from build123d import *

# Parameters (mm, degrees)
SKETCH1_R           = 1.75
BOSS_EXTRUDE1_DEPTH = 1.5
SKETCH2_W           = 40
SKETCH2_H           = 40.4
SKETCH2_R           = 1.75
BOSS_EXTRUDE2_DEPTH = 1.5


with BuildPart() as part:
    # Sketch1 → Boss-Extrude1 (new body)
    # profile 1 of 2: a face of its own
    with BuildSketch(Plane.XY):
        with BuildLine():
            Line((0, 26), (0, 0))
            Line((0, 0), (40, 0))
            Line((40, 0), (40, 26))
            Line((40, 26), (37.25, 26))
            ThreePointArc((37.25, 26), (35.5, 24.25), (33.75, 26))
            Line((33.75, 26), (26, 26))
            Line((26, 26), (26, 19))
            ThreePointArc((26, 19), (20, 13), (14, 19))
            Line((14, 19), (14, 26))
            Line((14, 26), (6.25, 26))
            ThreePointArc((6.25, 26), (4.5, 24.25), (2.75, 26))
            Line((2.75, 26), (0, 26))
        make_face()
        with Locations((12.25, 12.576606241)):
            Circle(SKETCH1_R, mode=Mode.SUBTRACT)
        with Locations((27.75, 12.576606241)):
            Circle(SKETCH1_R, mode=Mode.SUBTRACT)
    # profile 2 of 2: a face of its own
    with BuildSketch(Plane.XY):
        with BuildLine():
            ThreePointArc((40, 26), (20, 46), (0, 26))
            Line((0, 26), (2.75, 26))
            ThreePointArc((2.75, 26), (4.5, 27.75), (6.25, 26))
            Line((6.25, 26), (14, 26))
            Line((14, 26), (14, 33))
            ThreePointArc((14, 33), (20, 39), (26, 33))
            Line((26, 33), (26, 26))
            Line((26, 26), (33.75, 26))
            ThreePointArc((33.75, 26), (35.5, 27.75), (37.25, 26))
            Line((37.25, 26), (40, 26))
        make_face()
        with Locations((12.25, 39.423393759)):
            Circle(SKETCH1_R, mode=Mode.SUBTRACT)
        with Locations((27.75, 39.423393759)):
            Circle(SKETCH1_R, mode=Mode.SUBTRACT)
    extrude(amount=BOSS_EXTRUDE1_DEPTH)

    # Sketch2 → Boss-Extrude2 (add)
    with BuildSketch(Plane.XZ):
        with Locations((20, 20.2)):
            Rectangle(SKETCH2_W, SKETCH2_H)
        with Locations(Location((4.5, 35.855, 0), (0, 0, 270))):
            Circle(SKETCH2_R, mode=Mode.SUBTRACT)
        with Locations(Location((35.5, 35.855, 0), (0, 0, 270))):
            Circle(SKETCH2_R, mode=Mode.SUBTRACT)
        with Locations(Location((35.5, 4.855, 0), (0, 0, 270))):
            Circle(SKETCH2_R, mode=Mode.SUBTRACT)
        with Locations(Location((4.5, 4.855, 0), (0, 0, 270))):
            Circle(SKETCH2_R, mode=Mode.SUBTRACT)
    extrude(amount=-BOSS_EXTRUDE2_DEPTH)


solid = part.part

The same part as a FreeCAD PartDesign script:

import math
import FreeCAD as App
import Part
import Sketcher
from FreeCAD import Vector

doc = App.newDocument("Part")
body = doc.addObject("PartDesign::Body", "Body")

# Sketch on XY plane
sketch1 = doc.addObject("Sketcher::SketchObject", "Sketch")
body.addObject(sketch1)
sketch1.AttachmentSupport = (doc.XY_Plane, [""])
sketch1.MapMode = "FlatFace"
sketch1.addGeometry(Part.LineSegment(Vector(0, 26, 0), Vector(0, 0, 0)), False)
sketch1.addGeometry(Part.LineSegment(Vector(0, 0, 0), Vector(40, 0, 0)), False)
sketch1.addGeometry(Part.LineSegment(Vector(40, 0, 0), Vector(40, 26, 0)), False)
sketch1.addGeometry(Part.ArcOfCircle(Part.Circle(Vector(20, 26, 0), Vector(0, 0, 1), 20), math.radians(0), math.radians(180)), False)
sketch1.addGeometry(Part.Circle(Vector(4.5, 26, 0), Vector(0, 0, 1), 1.8), False)
sketch1.addGeometry(Part.LineSegment(Vector(14, 19, 0), Vector(14, 33, 0)), False)
sketch1.addGeometry(Part.ArcOfCircle(Part.Circle(Vector(20, 33, 0), Vector(0, 0, 1), 6), math.radians(0), math.radians(180)), False)
sketch1.addGeometry(Part.LineSegment(Vector(26, 33, 0), Vector(26, 19, 0)), False)
sketch1.addGeometry(Part.ArcOfCircle(Part.Circle(Vector(20, 19, 0), Vector(0, 0, 1), 6), math.radians(180), math.radians(360)), False)
sketch1.addGeometry(Part.Circle(Vector(35.5, 26, 0), Vector(0, 0, 1), 1.8), False)
sketch1.addGeometry(Part.Circle(Vector(12.2, 12.6, 0), Vector(0, 0, 1), 1.8), False)
sketch1.addGeometry(Part.Circle(Vector(27.8, 12.6, 0), Vector(0, 0, 1), 1.8), False)
sketch1.addGeometry(Part.Circle(Vector(27.8, 39.4, 0), Vector(0, 0, 1), 1.8), False)
sketch1.addGeometry(Part.Circle(Vector(12.2, 39.4, 0), Vector(0, 0, 1), 1.8), False)
sketch1.addConstraint(Sketcher.Constraint("Coincident", 0, 2, 1, 1))
sketch1.addConstraint(Sketcher.Constraint("Coincident", 1, 2, 2, 1))
sketch1.addConstraint(Sketcher.Constraint("Tangent", 2, 2, 3, 1))
sketch1.addConstraint(Sketcher.Constraint("Tangent", 3, 2, 0, 1))
sketch1.addConstraint(Sketcher.Constraint("Tangent", 5, 2, 6, 2))
sketch1.addConstraint(Sketcher.Constraint("Tangent", 6, 1, 7, 1))
sketch1.addConstraint(Sketcher.Constraint("Tangent", 7, 2, 8, 2))
sketch1.addConstraint(Sketcher.Constraint("Tangent", 8, 1, 5, 1))
sketch1.addConstraint(Sketcher.Constraint("Vertical", 0))
sketch1.addConstraint(Sketcher.Constraint("Horizontal", 1))
sketch1.addConstraint(Sketcher.Constraint("Vertical", 2))
sketch1.addConstraint(Sketcher.Constraint("Vertical", 5))
sketch1.addConstraint(Sketcher.Constraint("Vertical", 7))
sketch1.addConstraint(Sketcher.Constraint("Coincident", 0, 2, -1, 1))
sketch1.addConstraint(Sketcher.Constraint("Equal", 4, 9))
sketch1.addConstraint(Sketcher.Constraint("Equal", 9, 10))
sketch1.addConstraint(Sketcher.Constraint("Equal", 10, 11))
sketch1.addConstraint(Sketcher.Constraint("Equal", 11, 12))
sketch1.addConstraint(Sketcher.Constraint("Equal", 12, 13))
sketch1.addConstraint(Sketcher.Constraint("Horizontal", 3, 3, 4, 3))
sketch1.addConstraint(Sketcher.Constraint("Horizontal", 4, 3, 9, 3))
sketch1.addConstraint(Sketcher.Constraint("Horizontal", 10, 3, 11, 3))
sketch1.addConstraint(Sketcher.Constraint("Horizontal", 12, 3, 13, 3))
sketch1.addConstraint(Sketcher.Constraint("Vertical", 3, 3, 6, 3))
sketch1.addConstraint(Sketcher.Constraint("Vertical", 11, 3, 12, 3))
sketch1.addConstraint(Sketcher.Constraint("Vertical", 10, 3, 13, 3))
sketch1.addConstraint(Sketcher.Constraint("Radius", 3, 20.0))
sketch1.addConstraint(Sketcher.Constraint("Radius", 6, 6.0))
sketch1.addConstraint(Sketcher.Constraint("Diameter", 4, 3.5))
sketch1.addConstraint(Sketcher.Constraint("DistanceY", 0, 2, 0, 1, 26.0))
sketch1.addConstraint(Sketcher.Constraint("DistanceY", 5, 1, 5, 2, 14.0))
sketch1.addConstraint(Sketcher.Constraint("DistanceY", -1, 1, 6, 3, 33.0))
sketch1.addConstraint(Sketcher.Constraint("DistanceX", 4, 3, 9, 3, 31.0))
sketch1.addConstraint(Sketcher.Constraint("DistanceX", -1, 1, 4, 3, 4.5))
sketch1.addConstraint(Sketcher.Constraint("DistanceX", 10, 3, 11, 3, 15.5))
sketch1.addConstraint(Sketcher.Constraint("DistanceX", -1, 1, 10, 3, 12.25))
sketch1.addConstraint(Sketcher.Constraint("DistanceY", -1, 1, 10, 3, 12.576606))
sketch1.addConstraint(Sketcher.Constraint("DistanceY", -1, 1, 12, 3, 39.423394))
pad1 = doc.addObject("PartDesign::Pad", "Pad")
body.addObject(pad1)
pad1.Profile = sketch1
pad1.Length = 1.5

# Sketch on XZ plane
sketch2 = doc.addObject("Sketcher::SketchObject", "Sketch001")
body.addObject(sketch2)
sketch2.AttachmentSupport = (doc.XZ_Plane, [""])
sketch2.MapMode = "FlatFace"
sketch2.addGeometry(Part.LineSegment(Vector(0, 40.4, 0), Vector(0, 0, 0)), False)
sketch2.addGeometry(Part.LineSegment(Vector(0, 0, 0), Vector(40, 0, 0)), False)
sketch2.addGeometry(Part.LineSegment(Vector(40, 0, 0), Vector(40, 40.4, 0)), False)
sketch2.addGeometry(Part.LineSegment(Vector(40, 40.4, 0), Vector(0, 40.4, 0)), False)
sketch2.addGeometry(Part.Circle(Vector(4.5, 4.9, 0), Vector(0, 0, 1), 1.8), False)
sketch2.addGeometry(Part.Circle(Vector(35.5, 4.9, 0), Vector(0, 0, 1), 1.8), False)
sketch2.addGeometry(Part.Circle(Vector(4.5, 35.9, 0), Vector(0, 0, 1), 1.8), False)
sketch2.addGeometry(Part.Circle(Vector(35.5, 35.9, 0), Vector(0, 0, 1), 1.8), False)
sketch2.addConstraint(Sketcher.Constraint("Coincident", 0, 2, 1, 1))
sketch2.addConstraint(Sketcher.Constraint("Coincident", 1, 2, 2, 1))
sketch2.addConstraint(Sketcher.Constraint("Coincident", 2, 2, 3, 1))
sketch2.addConstraint(Sketcher.Constraint("Coincident", 3, 2, 0, 1))
sketch2.addConstraint(Sketcher.Constraint("Vertical", 0))
sketch2.addConstraint(Sketcher.Constraint("Horizontal", 1))
sketch2.addConstraint(Sketcher.Constraint("Vertical", 2))
sketch2.addConstraint(Sketcher.Constraint("Horizontal", 3))
sketch2.addConstraint(Sketcher.Constraint("Coincident", 0, 2, -1, 1))
sketch2.addConstraint(Sketcher.Constraint("Equal", 4, 5))
sketch2.addConstraint(Sketcher.Constraint("Equal", 5, 6))
sketch2.addConstraint(Sketcher.Constraint("Equal", 6, 7))
sketch2.addConstraint(Sketcher.Constraint("Horizontal", 4, 3, 5, 3))
sketch2.addConstraint(Sketcher.Constraint("Horizontal", 6, 3, 7, 3))
sketch2.addConstraint(Sketcher.Constraint("Vertical", 4, 3, 6, 3))
sketch2.addConstraint(Sketcher.Constraint("Vertical", 5, 3, 7, 3))
sketch2.addConstraint(Sketcher.Constraint("Diameter", 4, 3.5))
sketch2.addConstraint(Sketcher.Constraint("DistanceX", 1, 1, 1, 2, 40.0))
sketch2.addConstraint(Sketcher.Constraint("DistanceY", 0, 2, 0, 1, 40.4))
sketch2.addConstraint(Sketcher.Constraint("DistanceX", 4, 3, 5, 3, 31.0))
sketch2.addConstraint(Sketcher.Constraint("DistanceY", 4, 3, 6, 3, 31.0))
sketch2.addConstraint(Sketcher.Constraint("DistanceX", -1, 1, 4, 3, 4.5))
sketch2.addConstraint(Sketcher.Constraint("DistanceY", -1, 1, 4, 3, 4.855))
pad2 = doc.addObject("PartDesign::Pad", "Pad001")
body.addObject(pad2)
pad2.Profile = sketch2
pad2.Length = 1.5
pad2.Reversed = True

doc.recompute()
